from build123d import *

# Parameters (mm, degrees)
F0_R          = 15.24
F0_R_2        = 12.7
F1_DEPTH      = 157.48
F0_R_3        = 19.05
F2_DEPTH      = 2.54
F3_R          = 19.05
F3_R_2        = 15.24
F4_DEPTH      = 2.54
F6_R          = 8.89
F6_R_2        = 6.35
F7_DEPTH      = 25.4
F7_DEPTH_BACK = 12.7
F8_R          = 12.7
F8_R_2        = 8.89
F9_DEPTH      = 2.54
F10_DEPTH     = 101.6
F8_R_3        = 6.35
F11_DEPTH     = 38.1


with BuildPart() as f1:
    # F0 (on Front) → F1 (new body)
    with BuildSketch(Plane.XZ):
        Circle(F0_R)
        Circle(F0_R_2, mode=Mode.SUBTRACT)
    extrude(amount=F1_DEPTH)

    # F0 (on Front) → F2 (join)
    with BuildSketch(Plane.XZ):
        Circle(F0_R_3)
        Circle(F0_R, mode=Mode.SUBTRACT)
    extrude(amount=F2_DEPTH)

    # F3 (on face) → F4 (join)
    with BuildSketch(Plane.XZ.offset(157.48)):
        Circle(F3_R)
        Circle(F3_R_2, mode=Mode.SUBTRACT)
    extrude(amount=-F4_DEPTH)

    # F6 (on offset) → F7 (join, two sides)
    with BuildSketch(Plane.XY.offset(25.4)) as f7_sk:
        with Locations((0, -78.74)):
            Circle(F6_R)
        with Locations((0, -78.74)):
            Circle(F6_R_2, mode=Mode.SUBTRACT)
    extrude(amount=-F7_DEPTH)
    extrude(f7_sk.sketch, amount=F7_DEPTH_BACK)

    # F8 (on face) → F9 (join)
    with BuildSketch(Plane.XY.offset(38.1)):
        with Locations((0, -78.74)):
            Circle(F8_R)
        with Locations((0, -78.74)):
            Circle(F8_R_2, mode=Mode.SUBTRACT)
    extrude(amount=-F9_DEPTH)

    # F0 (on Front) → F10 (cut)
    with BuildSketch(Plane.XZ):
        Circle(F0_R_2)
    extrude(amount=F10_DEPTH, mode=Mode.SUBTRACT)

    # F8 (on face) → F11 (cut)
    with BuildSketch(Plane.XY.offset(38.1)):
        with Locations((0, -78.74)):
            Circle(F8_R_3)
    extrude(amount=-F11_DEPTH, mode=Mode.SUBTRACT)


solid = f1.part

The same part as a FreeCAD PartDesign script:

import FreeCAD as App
import Part
import Sketcher
Q = App.Units.Quantity

doc = App.newDocument("Part")
body = doc.addObject("PartDesign::Body", "Body")

sketch1 = body.newObject("Sketcher::SketchObject", "Sketch")
sketch1.AttachmentSupport = (doc.getObject("XZ_Plane"), [""])
sketch1.MapMode = "FlatFace"
sketch1.addGeometry(Part.Circle(App.Vector(0, 0, 0), App.Vector(0, 0, 1), 15), False)
sketch1.addGeometry(Part.Circle(App.Vector(0, 0, 0), App.Vector(0, 0, 1), 13), False)
sketch1.addConstraint(Sketcher.Constraint("Coincident", 0, 3, -1, 1))
sketch1.addConstraint(Sketcher.Constraint("Coincident", 1, 3, -1, 1))
sketch1.addConstraint(Sketcher.Constraint("Diameter", 1, Q("1 in")))
sketch1.addConstraint(Sketcher.Constraint("Diameter", 0, Q("1.2 in")))
pad1 = body.newObject("PartDesign::Pad", "Pad")
pad1.Profile = sketch1
pad1.Length = Q("6.2 in")

sketch2 = body.newObject("Sketcher::SketchObject", "Sketch001")
sketch2.AttachmentSupport = (doc.getObject("XZ_Plane"), [""])
sketch2.MapMode = "FlatFace"
sketch2.addGeometry(Part.Circle(App.Vector(0, 0, 0), App.Vector(0, 0, 1), 19), False)
sketch2.addGeometry(Part.Circle(App.Vector(0, 0, 0), App.Vector(0, 0, 1), 15), False)
sketch2.addConstraint(Sketcher.Constraint("Coincident", 0, 3, -1, 1))
sketch2.addConstraint(Sketcher.Constraint("Coincident", 1, 3, -1, 1))
sketch2.addConstraint(Sketcher.Constraint("Diameter", 0, Q("1.5 in")))
sketch2.addConstraint(Sketcher.Constraint("Diameter", 1, Q("1.2 in")))
pad2 = body.newObject("PartDesign::Pad", "Pad001")
pad2.Profile = sketch2
pad2.Length = Q("0.1 in")

sketch3 = body.newObject("Sketcher::SketchObject", "Sketch002")
sketch3.AttachmentSupport = (doc.getObject("XZ_Plane"), [""])
sketch3.MapMode = "FlatFace"
sketch3.AttachmentOffset = App.Placement(App.Vector(0, 0, 6.2 * 25.4), App.Rotation())
sketch3.addGeometry(Part.Circle(App.Vector(0, 0, 0), App.Vector(0, 0, 1), 19), False)
sketch3.addGeometry(Part.Circle(App.Vector(0, 0, 0), App.Vector(0, 0, 1), 15), False)
sketch3.addConstraint(Sketcher.Constraint("Coincident", 0, 3, -1, 1))
sketch3.addConstraint(Sketcher.Constraint("Coincident", 1, 3, -1, 1))
sketch3.addConstraint(Sketcher.Constraint("Diameter", 0, Q("1.5 in")))
sketch3.addConstraint(Sketcher.Constraint("Diameter", 1, Q("1.2 in")))
pad3 = body.newObject("PartDesign::Pad", "Pad002")
pad3.Profile = sketch3
pad3.Length = Q("0.1 in")
pad3.Reversed = True

sketch4 = body.newObject("Sketcher::SketchObject", "Sketch003")
sketch4.AttachmentSupport = (doc.getObject("XY_Plane"), [""])
sketch4.MapMode = "FlatFace"
sketch4.AttachmentOffset = App.Placement(App.Vector(0, 0, 1 * 25.4), App.Rotation())
sketch4.addGeometry(Part.Circle(App.Vector(0, -79, 0), App.Vector(0, 0, 1), 9), False)
sketch4.addGeometry(Part.Circle(App.Vector(0, -79, 0), App.Vector(0, 0, 1), 6), False)
sketch4.addConstraint(Sketcher.Constraint("Coincident", 1, 3, 0, 3))
sketch4.addConstraint(Sketcher.Constraint("PointOnObject", 0, 3, -2))
sketch4.addConstraint(Sketcher.Constraint("Diameter", 0, Q("0.7 in")))
sketch4.addConstraint(Sketcher.Constraint("Diameter", 1, Q("0.5 in")))
sketch4.addConstraint(Sketcher.Constraint("DistanceY", 0, 3, -1, 1, Q("3.1 in")))
pad4 = body.newObject("PartDesign::Pad", "Pad003")
pad4.Profile = sketch4
pad4.Type = "TwoLengths"
pad4.Length = Q("1 in")
pad4.Length2 = Q("0.5 in")
pad4.Reversed = True

sketch5 = body.newObject("Sketcher::SketchObject", "Sketch004")
sketch5.AttachmentSupport = (doc.getObject("XY_Plane"), [""])
sketch5.MapMode = "FlatFace"
sketch5.AttachmentOffset = App.Placement(App.Vector(0, 0, 1.5 * 25.4), App.Rotation())
sketch5.addGeometry(Part.Circle(App.Vector(0, -79, 0), App.Vector(0, 0, 1), 13), False)
sketch5.addGeometry(Part.Circle(App.Vector(0, -79, 0), App.Vector(0, 0, 1), 9), False)
sketch5.addConstraint(Sketcher.Constraint("Coincident", 1, 3, 0, 3))
sketch5.addConstraint(Sketcher.Constraint("PointOnObject", 0, 3, -2))
sketch5.addConstraint(Sketcher.Constraint("Diameter", 0, Q("1 in")))
sketch5.addConstraint(Sketcher.Constraint("Diameter", 1, Q("0.7 in")))
sketch5.addConstraint(Sketcher.Constraint("DistanceY", 0, 3, -1, 1, Q("3.1 in")))
pad5 = body.newObject("PartDesign::Pad", "Pad004")
pad5.Profile = sketch5
pad5.Length = Q("0.1 in")
pad5.Reversed = True

sketch6 = body.newObject("Sketcher::SketchObject", "Sketch005")
sketch6.AttachmentSupport = (doc.getObject("XZ_Plane"), [""])
sketch6.MapMode = "FlatFace"
sketch6.addGeometry(Part.Circle(App.Vector(0, 0, 0), App.Vector(0, 0, 1), 13), False)
sketch6.addConstraint(Sketcher.Constraint("Coincident", 0, 3, -1, 1))
sketch6.addConstraint(Sketcher.Constraint("Diameter", 0, Q("1 in")))
pocket1 = body.newObject("PartDesign::Pocket", "Pocket")
pocket1.Profile = sketch6
pocket1.Length = Q("4 in")
pocket1.Reversed = True

sketch7 = body.newObject("Sketcher::SketchObject", "Sketch006")
sketch7.AttachmentSupport = (doc.getObject("XY_Plane"), [""])
sketch7.MapMode = "FlatFace"
sketch7.AttachmentOffset = App.Placement(App.Vector(0, 0, 1.5 * 25.4), App.Rotation())
sketch7.addGeometry(Part.Circle(App.Vector(0, -79, 0), App.Vector(0, 0, 1), 6), False)
sketch7.addConstraint(Sketcher.Constraint("PointOnObject", 0, 3, -2))
sketch7.addConstraint(Sketcher.Constraint("Diameter", 0, Q("0.5 in")))
sketch7.addConstraint(Sketcher.Constraint("DistanceY", 0, 3, -1, 1, Q("3.1 in")))
pocket2 = body.newObject("PartDesign::Pocket", "Pocket001")
pocket2.Profile = sketch7
pocket2.Length = Q("1.5 in")

doc.recompute()
